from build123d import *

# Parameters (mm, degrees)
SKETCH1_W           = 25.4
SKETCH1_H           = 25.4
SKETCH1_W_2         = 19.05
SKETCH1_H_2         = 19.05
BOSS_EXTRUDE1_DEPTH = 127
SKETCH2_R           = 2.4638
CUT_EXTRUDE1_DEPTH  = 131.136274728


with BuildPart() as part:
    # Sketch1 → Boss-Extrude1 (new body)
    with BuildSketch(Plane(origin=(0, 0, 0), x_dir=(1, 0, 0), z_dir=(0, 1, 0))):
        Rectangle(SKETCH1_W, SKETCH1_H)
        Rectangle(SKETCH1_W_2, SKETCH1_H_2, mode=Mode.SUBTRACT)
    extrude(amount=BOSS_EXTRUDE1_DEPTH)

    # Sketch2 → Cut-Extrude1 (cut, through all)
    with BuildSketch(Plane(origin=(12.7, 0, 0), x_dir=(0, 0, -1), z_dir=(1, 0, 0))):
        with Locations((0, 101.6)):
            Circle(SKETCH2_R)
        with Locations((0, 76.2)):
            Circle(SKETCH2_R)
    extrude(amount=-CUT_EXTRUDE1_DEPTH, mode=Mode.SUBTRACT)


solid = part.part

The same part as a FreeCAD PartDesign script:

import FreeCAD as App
import Part
import Sketcher

V = App.Vector
Q = App.Units.Quantity

doc = App.newDocument("Part")
body = doc.addObject("PartDesign::Body", "Body")

# Sketch on XZ plane
sketch1 = doc.addObject("Sketcher::SketchObject", "Sketch")
body.addObject(sketch1)
sketch1.AttachmentSupport = (doc.XZ_Plane, [""])
sketch1.MapMode = "FlatFace"
sketch1.addGeometry(Part.LineSegment(V(-13, -13, 0), V(-13, 13, 0)), False)
sketch1.addGeometry(Part.LineSegment(V(-13, 13, 0), V(13, 13, 0)), False)
sketch1.addGeometry(Part.LineSegment(V(13, 13, 0), V(13, -13, 0)), False)
sketch1.addGeometry(Part.LineSegment(V(13, -13, 0), V(-13, -13, 0)), False)
sketch1.addGeometry(Part.LineSegment(V(10, 10, 0), V(-10, 10, 0)), False)
sketch1.addGeometry(Part.LineSegment(V(-10, 10, 0), V(-10, -10, 0)), False)
sketch1.addGeometry(Part.LineSegment(V(-10, -10, 0), V(10, -10, 0)), False)
sketch1.addGeometry(Part.LineSegment(V(10, -10, 0), V(10, 10, 0)), False)
sketch1.addConstraint(Sketcher.Constraint("Coincident", 0, 2, 1, 1))
sketch1.addConstraint(Sketcher.Constraint("Coincident", 1, 2, 2, 1))
sketch1.addConstraint(Sketcher.Constraint("Coincident", 2, 2, 3, 1))
sketch1.addConstraint(Sketcher.Constraint("Coincident", 3, 2, 0, 1))
sketch1.addConstraint(Sketcher.Constraint("Coincident", 4, 2, 5, 1))
sketch1.addConstraint(Sketcher.Constraint("Coincident", 5, 2, 6, 1))
sketch1.addConstraint(Sketcher.Constraint("Coincident", 6, 2, 7, 1))
sketch1.addConstraint(Sketcher.Constraint("Coincident", 7, 2, 4, 1))
sketch1.addConstraint(Sketcher.Constraint("Vertical", 0))
sketch1.addConstraint(Sketcher.Constraint("Horizontal", 1))
sketch1.addConstraint(Sketcher.Constraint("Vertical", 2))
sketch1.addConstraint(Sketcher.Constraint("Horizontal", 3))
sketch1.addConstraint(Sketcher.Constraint("Horizontal", 4))
sketch1.addConstraint(Sketcher.Constraint("Vertical", 5))
sketch1.addConstraint(Sketcher.Constraint("Horizontal", 6))
sketch1.addConstraint(Sketcher.Constraint("Vertical", 7))
sketch1.addConstraint(Sketcher.Constraint("Symmetric", 0, 2, 2, 2, -1, 1))
sketch1.addConstraint(Sketcher.Constraint("Symmetric", 4, 2, 6, 2, -1, 1))
sketch1.addConstraint(Sketcher.Constraint("Equal", 3, 0))
sketch1.addConstraint(Sketcher.Constraint("Equal", 6, 5))
sketch1.addConstraint(Sketcher.Constraint("DistanceX", 1, 1, 1, 2, Q("1 in")))
sketch1.addConstraint(Sketcher.Constraint("DistanceX", 4, 2, 4, 1, Q("0.75 in")))
pad1 = doc.addObject("PartDesign::Pad", "Pad")
body.addObject(pad1)
pad1.Profile = sketch1
pad1.Length = Q("5 in")
pad1.Reversed = True

# Sketch on YZ plane
sketch2 = doc.addObject("Sketcher::SketchObject", "Sketch001")
body.addObject(sketch2)
sketch2.AttachmentSupport = (doc.YZ_Plane, [""])
sketch2.MapMode = "FlatFace"
sketch2.AttachmentOffset = App.Placement(V(0, 0, 0.5 * 25.4), App.Rotation())
sketch2.addGeometry(Part.Circle(V(101.6, 0, 0), V(0, 0, 1), 2.5), False)
sketch2.addGeometry(Part.Circle(V(76.2, 0, 0), V(0, 0, 1), 2.5), False)
sketch2.addConstraint(Sketcher.Constraint("Equal", 0, 1))
sketch2.addConstraint(Sketcher.Constraint("PointOnObject", 0, 3, -1))
sketch2.addConstraint(Sketcher.Constraint("PointOnObject", 1, 3, -1))
sketch2.addConstraint(Sketcher.Constraint("Diameter", 0, Q("0.194 in")))
sketch2.addConstraint(Sketcher.Constraint("DistanceX", -1, 1, 0, 3, Q("4 in")))
sketch2.addConstraint(Sketcher.Constraint("DistanceX", -1, 1, 1, 3, Q("3 in")))
pocket1 = doc.addObject("PartDesign::Pocket", "Pocket")
body.addObject(pocket1)
pocket1.Profile = sketch2
pocket1.Type = "ThroughAll"

doc.recompute()
